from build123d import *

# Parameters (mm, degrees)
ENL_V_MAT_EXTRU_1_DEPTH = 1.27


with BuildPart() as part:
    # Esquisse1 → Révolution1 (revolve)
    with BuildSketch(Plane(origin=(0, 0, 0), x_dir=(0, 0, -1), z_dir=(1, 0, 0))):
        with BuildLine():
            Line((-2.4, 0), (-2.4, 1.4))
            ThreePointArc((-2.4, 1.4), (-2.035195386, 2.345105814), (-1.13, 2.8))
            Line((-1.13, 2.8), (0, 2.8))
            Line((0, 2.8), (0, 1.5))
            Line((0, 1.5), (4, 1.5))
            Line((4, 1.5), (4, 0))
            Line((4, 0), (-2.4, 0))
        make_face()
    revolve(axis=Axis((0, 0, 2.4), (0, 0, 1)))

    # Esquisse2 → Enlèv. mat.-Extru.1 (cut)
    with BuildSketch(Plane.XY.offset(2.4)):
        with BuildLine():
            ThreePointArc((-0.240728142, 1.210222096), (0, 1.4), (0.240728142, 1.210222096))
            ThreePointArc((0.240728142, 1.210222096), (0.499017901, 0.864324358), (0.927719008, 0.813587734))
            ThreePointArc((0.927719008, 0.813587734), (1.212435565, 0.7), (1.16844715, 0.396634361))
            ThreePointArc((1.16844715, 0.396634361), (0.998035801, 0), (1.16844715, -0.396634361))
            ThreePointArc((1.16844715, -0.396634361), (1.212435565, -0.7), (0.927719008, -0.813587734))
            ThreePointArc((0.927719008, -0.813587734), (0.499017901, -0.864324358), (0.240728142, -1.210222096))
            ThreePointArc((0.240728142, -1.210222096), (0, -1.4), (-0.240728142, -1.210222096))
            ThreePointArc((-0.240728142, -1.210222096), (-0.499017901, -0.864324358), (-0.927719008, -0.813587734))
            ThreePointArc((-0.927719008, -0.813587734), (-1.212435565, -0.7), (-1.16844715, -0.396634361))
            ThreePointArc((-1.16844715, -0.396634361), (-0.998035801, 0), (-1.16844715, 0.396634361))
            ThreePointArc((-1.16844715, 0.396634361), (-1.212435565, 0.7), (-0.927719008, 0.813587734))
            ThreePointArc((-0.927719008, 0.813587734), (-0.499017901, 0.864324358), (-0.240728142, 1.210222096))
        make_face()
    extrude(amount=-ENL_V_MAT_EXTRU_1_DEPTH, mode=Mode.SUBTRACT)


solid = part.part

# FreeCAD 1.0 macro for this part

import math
import FreeCAD as App
import Part
import Sketcher
from FreeCAD import Vector

doc = App.newDocument("Part")
body = doc.addObject("PartDesign::Body", "Body")

# Sketch on YZ plane
sketch1 = body.newObject("Sketcher::SketchObject", "Sketch")
sketch1.AttachmentSupport = (doc.getObject("YZ_Plane"), [""])
sketch1.MapMode = "FlatFace"
sketch1.addGeometry([
    Part.LineSegment(Vector(1.4, 2.4, 0), Vector(0, 2.4, 0)),  # 0
    Part.LineSegment(Vector(0, 2.4, 0), Vector(0, -4, 0)),  # 1
    Part.LineSegment(Vector(0, -4, 0), Vector(1.5, -4, 0)),  # 2
    Part.LineSegment(Vector(1.5, -4, 0), Vector(1.5, 0, 0)),  # 3
    Part.LineSegment(Vector(1.5, 0, 0), Vector(2.8, 0, 0)),  # 4
    Part.LineSegment(Vector(2.8, 0, 0), Vector(2.8, 1.1, 0)),  # 5
    Part.ArcOfCircle(Part.Circle(Vector(1.4, 1, 0), Vector(0, 0, 1), 1.4), math.radians(6), math.radians(90)),  # 6
], False)
sketch1.addConstraint([
    Sketcher.Constraint("Coincident", 0, 2, 1, 1),
    Sketcher.Constraint("Coincident", 1, 2, 2, 1),
    Sketcher.Constraint("Coincident", 2, 2, 3, 1),
    Sketcher.Constraint("Coincident", 3, 2, 4, 1),
    Sketcher.Constraint("Coincident", 4, 2, 5, 1),
    Sketcher.Constraint("Coincident", 5, 2, 6, 1),
    Sketcher.Constraint("Tangent", 6, 2, 0, 1),
    Sketcher.Constraint("Horizontal", 0),
    Sketcher.Constraint("Vertical", 1),
    Sketcher.Constraint("Horizontal", 2),
    Sketcher.Constraint("Vertical", 3),
    Sketcher.Constraint("Horizontal", 4),
    Sketcher.Constraint("Vertical", 5),
    Sketcher.Constraint("PointOnObject", 0, 2, -2),
    Sketcher.Constraint("PointOnObject", 3, 2, -1),
    Sketcher.Constraint("DistanceY", 3, 1, 3, 2, 4.0),
    Sketcher.Constraint("DistanceX", 0, 2, 0, 1, 1.4),
    Sketcher.Constraint("DistanceX", 2, 1, 2, 2, 1.5),
    Sketcher.Constraint("DistanceX", 4, 1, 4, 2, 1.3),
    Sketcher.Constraint("DistanceY", 1, 2, 1, 1, 6.4),
    Sketcher.Constraint("DistanceY", 5, 1, 5, 2, 1.13),
])
revolution = body.newObject("PartDesign::Revolution", "Revolution")
revolution.Profile = sketch1
revolution.ReferenceAxis = (sketch1, ["V_Axis"])
revolution.Angle = 360

# Sketch on XY plane
sketch2 = body.newObject("Sketcher::SketchObject", "Sketch001")
sketch2.AttachmentSupport = (doc.getObject("XY_Plane"), [""])
sketch2.MapMode = "FlatFace"
sketch2.AttachmentOffset = App.Placement(Vector(0, 0, 2.4), App.Rotation())
sketch2.addGeometry([
    Part.ArcOfCircle(Part.Circle(Vector(0, 1.15, 0), Vector(0, 0, 1), 0.25), math.radians(13), math.radians(167)),  # 0
    Part.ArcOfCircle(Part.Circle(Vector(-0.77, 1.34, 0), Vector(0, 0, 1), 0.55), math.radians(-107), math.radians(-13)),  # 1
    Part.ArcOfCircle(Part.Circle(Vector(-1, 0.58, 0), Vector(0, 0, 1), 0.25), math.radians(73), math.radians(227)),  # 2
    Part.ArcOfCircle(Part.Circle(Vector(-1.54, 0, 0), Vector(0, 0, 1), 0.55), math.radians(-47), math.radians(47)),  # 3
    Part.ArcOfCircle(Part.Circle(Vector(-1, -0.58, 0), Vector(0, 0, 1), 0.25), math.radians(133), math.radians(287)),  # 4
    Part.ArcOfCircle(Part.Circle(Vector(-0.77, -1.34, 0), Vector(0, 0, 1), 0.55), math.radians(13), math.radians(107)),  # 5
    Part.ArcOfCircle(Part.Circle(Vector(0, -1.15, 0), Vector(0, 0, 1), 0.25), math.radians(-167), math.radians(-13)),  # 6
    Part.ArcOfCircle(Part.Circle(Vector(0.77, -1.34, 0), Vector(0, 0, 1), 0.55), math.radians(73), math.radians(167)),  # 7
    Part.ArcOfCircle(Part.Circle(Vector(1, -0.58, 0), Vector(0, 0, 1), 0.25), math.radians(-107), math.radians(47)),  # 8
    Part.ArcOfCircle(Part.Circle(Vector(1.54, 0, 0), Vector(0, 0, 1), 0.55), math.radians(133), math.radians(227)),  # 9
    Part.ArcOfCircle(Part.Circle(Vector(1, 0.58, 0), Vector(0, 0, 1), 0.25), math.radians(-47), math.radians(107)),  # 10
    Part.ArcOfCircle(Part.Circle(Vector(0.77, 1.34, 0), Vector(0, 0, 1), 0.55), math.radians(-167), math.radians(-73)),  # 11
], False)
sketch2.addConstraint([
    Sketcher.Constraint("Tangent", 0, 2, 1, 2),
    Sketcher.Constraint("Tangent", 1, 1, 2, 1),
    Sketcher.Constraint("Tangent", 2, 2, 3, 2),
    Sketcher.Constraint("Tangent", 3, 1, 4, 1),
    Sketcher.Constraint("Tangent", 4, 2, 5, 2),
    Sketcher.Constraint("Tangent", 5, 1, 6, 1),
    Sketcher.Constraint("Tangent", 6, 2, 7, 2),
    Sketcher.Constraint("Tangent", 7, 1, 8, 1),
    Sketcher.Constraint("Tangent", 8, 2, 9, 2),
    Sketcher.Constraint("Tangent", 9, 1, 10, 1),
    Sketcher.Constraint("Tangent", 10, 2, 11, 2),
    Sketcher.Constraint("Tangent", 11, 1, 0, 1),
    Sketcher.Constraint("Equal", 0, 2),
    Sketcher.Constraint("Equal", 1, 3),
    Sketcher.Constraint("Equal", 2, 4),
    Sketcher.Constraint("Equal", 3, 5),
    Sketcher.Constraint("Equal", 4, 6),
    Sketcher.Constraint("Equal", 5, 7),
    Sketcher.Constraint("Equal", 6, 8),
    Sketcher.Constraint("Equal", 7, 9),
    Sketcher.Constraint("Equal", 8, 10),
    Sketcher.Constraint("Equal", 9, 11),
    Sketcher.Constraint("Symmetric", 0, 3, 6, 3, -1, 1),
    Sketcher.Constraint("Symmetric", 2, 3, 8, 3, -1, 1),
    Sketcher.Constraint("Symmetric", 4, 3, 10, 3, -1, 1),
    Sketcher.Constraint("Symmetric", 5, 3, 7, 3, -2),
    Sketcher.Constraint("PointOnObject", 3, 3, -1),
    Sketcher.Constraint("Radius", 1, 0.546791),
    Sketcher.Constraint("Radius", 0, 0.247568),
    Sketcher.Constraint("DistanceY", -1, 1, 1, 3, 1.337859),
    Sketcher.Constraint("DistanceX", 0, 2, -1, 1, 0.240728),
    Sketcher.Constraint("DistanceX", 1, 1, -1, 1, 0.927719),
])
pocket1 = body.newObject("PartDesign::Pocket", "Pocket")
pocket1.Profile = sketch2
pocket1.Length = 1.27

doc.recompute()
